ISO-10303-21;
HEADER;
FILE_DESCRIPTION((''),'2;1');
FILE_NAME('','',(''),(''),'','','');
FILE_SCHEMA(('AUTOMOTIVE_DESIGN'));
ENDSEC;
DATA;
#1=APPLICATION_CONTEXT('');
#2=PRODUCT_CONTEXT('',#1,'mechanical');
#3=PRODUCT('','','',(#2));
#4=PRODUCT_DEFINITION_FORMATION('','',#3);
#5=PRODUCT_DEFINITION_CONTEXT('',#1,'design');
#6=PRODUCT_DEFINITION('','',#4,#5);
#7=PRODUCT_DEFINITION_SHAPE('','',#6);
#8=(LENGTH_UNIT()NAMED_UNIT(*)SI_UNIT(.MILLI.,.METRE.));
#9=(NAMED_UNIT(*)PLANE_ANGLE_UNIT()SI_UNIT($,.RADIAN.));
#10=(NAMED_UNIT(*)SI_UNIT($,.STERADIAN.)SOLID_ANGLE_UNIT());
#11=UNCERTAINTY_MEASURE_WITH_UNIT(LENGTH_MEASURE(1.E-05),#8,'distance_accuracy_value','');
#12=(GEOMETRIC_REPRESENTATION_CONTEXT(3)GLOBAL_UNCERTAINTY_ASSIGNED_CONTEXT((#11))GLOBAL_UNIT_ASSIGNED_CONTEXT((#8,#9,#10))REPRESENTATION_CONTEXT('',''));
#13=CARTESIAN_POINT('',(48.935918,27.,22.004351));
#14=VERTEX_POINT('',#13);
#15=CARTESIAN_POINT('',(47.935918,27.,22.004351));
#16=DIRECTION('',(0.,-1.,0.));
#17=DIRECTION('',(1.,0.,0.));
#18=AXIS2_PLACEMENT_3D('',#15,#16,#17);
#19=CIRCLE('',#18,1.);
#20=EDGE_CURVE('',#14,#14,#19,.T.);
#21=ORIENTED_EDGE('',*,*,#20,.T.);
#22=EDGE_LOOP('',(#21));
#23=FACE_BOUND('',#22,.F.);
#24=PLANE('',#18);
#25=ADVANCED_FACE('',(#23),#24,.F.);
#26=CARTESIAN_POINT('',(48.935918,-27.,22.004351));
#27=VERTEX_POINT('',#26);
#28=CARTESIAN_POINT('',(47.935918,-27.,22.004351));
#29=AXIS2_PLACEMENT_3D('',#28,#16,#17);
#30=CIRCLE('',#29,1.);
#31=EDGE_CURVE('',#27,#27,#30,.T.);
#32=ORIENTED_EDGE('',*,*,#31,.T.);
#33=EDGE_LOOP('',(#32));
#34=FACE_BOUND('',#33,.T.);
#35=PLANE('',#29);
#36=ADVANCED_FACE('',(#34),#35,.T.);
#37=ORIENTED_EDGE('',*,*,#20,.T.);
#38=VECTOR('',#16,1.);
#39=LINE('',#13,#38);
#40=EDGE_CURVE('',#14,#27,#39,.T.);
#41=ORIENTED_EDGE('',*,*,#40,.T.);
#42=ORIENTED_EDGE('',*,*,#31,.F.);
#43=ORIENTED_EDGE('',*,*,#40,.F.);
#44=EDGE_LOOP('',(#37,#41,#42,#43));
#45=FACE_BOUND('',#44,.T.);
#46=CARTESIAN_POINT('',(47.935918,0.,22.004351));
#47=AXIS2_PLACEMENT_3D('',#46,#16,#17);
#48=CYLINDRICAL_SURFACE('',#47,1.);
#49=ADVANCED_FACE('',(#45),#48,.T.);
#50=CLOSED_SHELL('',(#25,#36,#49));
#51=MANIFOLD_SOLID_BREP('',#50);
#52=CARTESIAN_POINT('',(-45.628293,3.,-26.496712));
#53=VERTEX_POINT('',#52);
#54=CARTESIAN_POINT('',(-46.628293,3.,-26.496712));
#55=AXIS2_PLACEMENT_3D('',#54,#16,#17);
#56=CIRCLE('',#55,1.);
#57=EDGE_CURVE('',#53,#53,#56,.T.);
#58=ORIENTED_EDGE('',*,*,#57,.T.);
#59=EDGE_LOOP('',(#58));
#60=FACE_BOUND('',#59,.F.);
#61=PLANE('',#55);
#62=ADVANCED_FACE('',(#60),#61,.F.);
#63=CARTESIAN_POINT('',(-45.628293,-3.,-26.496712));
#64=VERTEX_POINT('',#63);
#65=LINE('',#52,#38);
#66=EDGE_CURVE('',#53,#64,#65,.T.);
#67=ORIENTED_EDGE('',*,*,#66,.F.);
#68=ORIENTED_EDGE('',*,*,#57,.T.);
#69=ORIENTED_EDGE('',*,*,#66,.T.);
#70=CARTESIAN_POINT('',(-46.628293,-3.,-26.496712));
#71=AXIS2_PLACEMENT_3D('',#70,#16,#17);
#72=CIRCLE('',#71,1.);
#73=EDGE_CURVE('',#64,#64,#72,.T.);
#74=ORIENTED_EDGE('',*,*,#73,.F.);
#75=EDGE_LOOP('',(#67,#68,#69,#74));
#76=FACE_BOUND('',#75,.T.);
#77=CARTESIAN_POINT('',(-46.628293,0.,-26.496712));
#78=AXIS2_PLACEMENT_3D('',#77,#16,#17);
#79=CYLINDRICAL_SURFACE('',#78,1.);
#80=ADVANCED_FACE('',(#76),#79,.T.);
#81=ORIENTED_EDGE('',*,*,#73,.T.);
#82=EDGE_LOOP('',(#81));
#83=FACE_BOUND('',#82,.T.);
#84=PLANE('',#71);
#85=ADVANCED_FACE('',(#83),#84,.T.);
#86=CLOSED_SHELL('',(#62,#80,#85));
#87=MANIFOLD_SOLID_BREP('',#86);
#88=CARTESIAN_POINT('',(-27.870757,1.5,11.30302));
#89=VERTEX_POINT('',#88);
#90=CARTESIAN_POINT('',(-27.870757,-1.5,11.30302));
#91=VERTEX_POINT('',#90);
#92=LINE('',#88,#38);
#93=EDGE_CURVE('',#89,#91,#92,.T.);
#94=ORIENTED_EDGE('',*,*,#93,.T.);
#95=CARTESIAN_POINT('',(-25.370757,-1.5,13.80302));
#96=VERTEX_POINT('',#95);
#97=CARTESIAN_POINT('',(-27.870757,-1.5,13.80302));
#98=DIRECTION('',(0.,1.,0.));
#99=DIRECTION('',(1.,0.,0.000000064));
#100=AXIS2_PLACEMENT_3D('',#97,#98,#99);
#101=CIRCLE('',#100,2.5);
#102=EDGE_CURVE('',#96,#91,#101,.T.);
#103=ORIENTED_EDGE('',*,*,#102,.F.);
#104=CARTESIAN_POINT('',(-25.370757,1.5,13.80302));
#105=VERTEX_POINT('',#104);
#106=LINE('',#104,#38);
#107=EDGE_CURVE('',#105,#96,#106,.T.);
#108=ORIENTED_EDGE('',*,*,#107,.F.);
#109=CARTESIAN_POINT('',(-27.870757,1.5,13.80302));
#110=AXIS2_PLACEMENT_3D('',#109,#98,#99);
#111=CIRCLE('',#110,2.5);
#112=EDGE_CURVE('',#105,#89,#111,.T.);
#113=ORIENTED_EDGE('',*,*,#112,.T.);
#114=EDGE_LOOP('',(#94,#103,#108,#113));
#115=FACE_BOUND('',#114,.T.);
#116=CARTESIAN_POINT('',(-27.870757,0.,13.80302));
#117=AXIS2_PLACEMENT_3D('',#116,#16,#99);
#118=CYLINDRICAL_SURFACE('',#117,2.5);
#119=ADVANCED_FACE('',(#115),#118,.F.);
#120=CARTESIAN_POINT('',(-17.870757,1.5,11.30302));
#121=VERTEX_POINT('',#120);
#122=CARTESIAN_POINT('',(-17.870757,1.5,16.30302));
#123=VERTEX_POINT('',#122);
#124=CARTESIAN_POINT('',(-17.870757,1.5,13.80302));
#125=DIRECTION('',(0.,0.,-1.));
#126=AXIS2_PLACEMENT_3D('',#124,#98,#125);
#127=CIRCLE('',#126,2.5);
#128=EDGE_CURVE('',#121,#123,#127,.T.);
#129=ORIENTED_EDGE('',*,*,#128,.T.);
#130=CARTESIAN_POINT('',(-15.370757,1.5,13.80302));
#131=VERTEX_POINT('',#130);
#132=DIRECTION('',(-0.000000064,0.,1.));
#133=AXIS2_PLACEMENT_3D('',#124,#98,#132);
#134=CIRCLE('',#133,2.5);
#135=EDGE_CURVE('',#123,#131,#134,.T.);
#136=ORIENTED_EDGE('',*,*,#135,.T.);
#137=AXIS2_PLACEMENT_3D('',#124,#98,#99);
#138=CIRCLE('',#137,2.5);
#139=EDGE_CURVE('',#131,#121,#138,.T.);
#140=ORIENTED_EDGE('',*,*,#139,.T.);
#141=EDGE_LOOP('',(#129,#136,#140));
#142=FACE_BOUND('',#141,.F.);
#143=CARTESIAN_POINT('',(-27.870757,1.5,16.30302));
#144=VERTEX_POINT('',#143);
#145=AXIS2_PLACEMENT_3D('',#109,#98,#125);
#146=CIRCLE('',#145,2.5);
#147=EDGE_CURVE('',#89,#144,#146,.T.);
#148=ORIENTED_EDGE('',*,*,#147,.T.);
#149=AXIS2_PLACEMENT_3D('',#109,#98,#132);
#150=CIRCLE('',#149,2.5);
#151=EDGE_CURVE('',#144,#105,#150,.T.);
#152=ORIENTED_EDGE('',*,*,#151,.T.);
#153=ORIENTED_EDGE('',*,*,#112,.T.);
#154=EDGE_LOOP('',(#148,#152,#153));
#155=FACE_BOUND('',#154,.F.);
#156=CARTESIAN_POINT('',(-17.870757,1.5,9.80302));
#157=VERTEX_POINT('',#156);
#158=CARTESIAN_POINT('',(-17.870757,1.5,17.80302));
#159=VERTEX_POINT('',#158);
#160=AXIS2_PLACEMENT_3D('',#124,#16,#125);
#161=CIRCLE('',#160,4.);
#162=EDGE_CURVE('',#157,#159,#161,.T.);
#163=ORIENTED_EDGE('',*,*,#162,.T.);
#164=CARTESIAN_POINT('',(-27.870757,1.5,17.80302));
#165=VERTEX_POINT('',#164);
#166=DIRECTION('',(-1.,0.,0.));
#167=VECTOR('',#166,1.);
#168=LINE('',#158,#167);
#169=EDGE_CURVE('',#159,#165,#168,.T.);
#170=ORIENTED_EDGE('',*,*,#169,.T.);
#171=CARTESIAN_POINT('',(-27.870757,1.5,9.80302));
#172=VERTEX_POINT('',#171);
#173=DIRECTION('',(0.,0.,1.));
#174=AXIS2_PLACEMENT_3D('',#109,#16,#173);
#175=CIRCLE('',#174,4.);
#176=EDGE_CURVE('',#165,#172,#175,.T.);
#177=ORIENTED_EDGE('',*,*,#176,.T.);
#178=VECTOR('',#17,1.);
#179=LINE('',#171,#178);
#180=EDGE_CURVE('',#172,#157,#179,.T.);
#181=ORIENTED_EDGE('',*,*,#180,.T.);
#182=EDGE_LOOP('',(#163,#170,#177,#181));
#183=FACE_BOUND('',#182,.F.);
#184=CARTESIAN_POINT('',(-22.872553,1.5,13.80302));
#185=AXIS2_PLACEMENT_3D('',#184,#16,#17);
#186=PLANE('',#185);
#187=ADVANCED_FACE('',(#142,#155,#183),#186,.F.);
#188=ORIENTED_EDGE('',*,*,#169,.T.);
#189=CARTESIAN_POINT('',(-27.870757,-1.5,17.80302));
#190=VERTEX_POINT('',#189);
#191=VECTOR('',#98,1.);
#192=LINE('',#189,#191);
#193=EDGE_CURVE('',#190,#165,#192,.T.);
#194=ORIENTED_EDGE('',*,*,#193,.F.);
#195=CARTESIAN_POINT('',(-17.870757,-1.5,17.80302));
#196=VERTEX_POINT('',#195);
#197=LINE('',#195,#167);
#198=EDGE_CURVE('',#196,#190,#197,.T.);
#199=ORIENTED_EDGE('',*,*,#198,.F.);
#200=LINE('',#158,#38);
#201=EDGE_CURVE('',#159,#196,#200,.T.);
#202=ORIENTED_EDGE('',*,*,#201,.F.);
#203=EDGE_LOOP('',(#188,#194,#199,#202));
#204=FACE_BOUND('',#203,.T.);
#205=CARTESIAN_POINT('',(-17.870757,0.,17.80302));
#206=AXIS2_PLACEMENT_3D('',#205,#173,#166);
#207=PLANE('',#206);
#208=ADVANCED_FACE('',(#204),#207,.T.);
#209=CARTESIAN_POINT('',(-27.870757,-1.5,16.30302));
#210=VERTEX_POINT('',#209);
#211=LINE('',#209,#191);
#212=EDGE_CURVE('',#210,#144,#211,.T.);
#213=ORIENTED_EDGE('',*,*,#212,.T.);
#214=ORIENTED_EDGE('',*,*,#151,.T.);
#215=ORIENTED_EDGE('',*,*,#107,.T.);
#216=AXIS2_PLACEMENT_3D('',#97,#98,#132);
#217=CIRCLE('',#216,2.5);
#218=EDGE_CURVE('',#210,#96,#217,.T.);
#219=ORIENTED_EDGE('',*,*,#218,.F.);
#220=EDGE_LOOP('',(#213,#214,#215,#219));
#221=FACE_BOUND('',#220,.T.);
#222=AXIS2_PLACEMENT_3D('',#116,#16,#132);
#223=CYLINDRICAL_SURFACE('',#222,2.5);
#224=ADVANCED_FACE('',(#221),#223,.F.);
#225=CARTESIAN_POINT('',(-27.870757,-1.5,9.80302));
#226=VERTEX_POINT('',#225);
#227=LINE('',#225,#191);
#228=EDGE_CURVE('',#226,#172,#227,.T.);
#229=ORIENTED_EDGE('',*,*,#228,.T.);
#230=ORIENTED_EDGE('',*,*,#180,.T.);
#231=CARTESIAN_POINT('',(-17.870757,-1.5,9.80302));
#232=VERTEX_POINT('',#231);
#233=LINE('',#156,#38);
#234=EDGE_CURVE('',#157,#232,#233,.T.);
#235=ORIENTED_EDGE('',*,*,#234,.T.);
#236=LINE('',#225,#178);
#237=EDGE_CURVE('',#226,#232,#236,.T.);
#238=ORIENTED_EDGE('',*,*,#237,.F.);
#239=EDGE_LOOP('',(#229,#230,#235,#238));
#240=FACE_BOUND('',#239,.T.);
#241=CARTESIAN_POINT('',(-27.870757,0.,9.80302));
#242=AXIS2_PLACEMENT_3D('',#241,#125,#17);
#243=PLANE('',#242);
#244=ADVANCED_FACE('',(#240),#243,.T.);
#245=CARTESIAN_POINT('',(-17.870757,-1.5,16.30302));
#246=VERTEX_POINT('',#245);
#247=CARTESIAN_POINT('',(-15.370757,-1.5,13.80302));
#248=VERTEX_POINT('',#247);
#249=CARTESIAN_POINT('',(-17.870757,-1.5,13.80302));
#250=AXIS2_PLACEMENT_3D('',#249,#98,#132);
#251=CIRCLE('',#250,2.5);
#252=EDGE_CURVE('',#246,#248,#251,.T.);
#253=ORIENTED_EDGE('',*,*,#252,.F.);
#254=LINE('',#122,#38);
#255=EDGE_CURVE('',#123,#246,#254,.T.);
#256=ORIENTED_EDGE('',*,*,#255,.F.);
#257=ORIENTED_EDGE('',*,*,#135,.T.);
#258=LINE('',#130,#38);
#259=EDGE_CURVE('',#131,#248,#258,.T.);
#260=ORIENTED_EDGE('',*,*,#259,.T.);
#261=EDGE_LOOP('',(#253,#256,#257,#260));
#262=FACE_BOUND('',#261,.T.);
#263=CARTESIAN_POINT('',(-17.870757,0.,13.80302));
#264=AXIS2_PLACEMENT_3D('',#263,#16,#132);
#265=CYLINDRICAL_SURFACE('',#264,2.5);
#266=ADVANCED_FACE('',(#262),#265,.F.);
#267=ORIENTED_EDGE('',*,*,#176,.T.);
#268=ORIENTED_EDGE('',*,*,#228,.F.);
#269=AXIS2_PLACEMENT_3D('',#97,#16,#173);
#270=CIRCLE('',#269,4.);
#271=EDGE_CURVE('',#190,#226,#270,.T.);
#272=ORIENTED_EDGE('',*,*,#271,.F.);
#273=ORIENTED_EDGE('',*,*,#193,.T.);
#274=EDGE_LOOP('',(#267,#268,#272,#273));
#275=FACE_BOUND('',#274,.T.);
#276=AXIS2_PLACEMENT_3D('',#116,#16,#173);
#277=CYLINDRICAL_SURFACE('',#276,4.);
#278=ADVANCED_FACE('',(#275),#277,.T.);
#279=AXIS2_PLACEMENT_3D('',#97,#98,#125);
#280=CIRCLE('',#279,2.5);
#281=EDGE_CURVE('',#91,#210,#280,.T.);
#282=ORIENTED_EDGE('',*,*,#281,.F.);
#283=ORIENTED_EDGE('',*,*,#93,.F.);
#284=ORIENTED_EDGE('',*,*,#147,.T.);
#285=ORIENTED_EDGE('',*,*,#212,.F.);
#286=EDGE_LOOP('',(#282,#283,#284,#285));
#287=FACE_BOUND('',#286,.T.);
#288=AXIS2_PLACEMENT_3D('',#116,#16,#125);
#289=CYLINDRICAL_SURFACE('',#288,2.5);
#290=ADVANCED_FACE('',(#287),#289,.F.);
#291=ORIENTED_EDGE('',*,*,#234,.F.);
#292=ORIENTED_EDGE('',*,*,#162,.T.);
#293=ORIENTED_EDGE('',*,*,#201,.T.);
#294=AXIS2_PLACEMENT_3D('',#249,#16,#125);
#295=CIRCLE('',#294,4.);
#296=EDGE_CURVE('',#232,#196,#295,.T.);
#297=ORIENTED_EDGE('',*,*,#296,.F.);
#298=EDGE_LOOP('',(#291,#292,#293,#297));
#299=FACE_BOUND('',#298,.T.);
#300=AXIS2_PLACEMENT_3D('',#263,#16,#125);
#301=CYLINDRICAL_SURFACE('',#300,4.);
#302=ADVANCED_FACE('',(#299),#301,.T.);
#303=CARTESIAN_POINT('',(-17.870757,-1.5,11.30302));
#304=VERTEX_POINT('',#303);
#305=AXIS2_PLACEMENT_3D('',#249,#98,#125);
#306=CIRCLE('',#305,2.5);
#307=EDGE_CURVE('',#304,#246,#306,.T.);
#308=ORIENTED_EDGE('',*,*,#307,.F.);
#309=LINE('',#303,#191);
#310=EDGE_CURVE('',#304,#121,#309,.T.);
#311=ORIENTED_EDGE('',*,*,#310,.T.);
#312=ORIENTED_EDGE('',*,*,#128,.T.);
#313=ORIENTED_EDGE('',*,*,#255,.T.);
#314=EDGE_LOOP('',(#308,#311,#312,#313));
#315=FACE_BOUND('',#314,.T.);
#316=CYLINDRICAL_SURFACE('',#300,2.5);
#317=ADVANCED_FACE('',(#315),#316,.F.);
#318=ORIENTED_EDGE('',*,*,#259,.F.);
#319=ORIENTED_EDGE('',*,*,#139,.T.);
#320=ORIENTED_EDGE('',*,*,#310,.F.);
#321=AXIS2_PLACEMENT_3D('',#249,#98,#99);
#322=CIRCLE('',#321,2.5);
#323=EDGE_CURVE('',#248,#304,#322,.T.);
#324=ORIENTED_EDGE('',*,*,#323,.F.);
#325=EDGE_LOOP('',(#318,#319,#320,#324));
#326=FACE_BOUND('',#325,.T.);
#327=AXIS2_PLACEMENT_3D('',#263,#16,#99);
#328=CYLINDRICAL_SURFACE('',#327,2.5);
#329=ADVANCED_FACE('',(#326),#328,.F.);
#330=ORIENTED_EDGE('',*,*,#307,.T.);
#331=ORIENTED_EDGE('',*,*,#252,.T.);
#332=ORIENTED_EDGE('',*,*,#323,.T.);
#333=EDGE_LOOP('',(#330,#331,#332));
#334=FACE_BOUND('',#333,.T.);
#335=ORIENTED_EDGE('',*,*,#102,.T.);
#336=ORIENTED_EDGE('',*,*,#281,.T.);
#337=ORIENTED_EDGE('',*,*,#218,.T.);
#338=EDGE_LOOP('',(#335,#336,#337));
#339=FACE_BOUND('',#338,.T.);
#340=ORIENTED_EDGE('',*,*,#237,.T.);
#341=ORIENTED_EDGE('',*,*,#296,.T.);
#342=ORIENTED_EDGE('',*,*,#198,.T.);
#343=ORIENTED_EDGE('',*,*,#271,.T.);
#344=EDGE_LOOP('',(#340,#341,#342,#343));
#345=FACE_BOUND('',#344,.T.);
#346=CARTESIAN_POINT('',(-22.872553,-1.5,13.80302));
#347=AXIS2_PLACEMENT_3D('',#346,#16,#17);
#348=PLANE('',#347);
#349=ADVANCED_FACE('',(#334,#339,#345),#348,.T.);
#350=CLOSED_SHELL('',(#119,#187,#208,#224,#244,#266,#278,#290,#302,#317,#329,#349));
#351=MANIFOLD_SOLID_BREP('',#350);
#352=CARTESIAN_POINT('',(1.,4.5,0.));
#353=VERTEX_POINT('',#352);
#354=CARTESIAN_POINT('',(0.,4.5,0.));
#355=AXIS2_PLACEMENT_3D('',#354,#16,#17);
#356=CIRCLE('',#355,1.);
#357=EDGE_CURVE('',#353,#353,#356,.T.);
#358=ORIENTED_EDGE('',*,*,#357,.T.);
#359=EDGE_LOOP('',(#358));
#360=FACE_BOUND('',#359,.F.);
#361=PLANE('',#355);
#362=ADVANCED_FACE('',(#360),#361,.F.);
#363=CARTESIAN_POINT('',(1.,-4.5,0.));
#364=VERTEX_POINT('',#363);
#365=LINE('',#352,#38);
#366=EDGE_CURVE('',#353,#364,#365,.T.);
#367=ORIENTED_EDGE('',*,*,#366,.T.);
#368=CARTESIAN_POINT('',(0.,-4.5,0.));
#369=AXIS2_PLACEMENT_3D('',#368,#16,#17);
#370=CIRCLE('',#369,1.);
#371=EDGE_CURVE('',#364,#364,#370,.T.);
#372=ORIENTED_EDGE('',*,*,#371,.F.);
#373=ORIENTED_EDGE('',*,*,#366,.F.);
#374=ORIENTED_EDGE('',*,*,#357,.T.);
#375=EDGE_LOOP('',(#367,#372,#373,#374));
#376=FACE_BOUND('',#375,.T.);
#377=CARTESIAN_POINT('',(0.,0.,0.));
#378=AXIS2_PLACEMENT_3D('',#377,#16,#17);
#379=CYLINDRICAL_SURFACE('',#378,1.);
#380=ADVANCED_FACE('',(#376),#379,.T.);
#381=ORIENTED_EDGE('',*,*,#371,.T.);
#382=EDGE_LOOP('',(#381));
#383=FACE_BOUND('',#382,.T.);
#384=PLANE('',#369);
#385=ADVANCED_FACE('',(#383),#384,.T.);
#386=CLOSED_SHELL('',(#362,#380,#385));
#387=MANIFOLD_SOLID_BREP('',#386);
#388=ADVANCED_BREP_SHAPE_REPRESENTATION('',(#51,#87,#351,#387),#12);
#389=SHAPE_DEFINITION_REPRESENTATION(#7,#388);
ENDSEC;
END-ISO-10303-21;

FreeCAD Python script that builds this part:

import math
import FreeCAD as App
import Part
import Sketcher

V = App.Vector
Q = App.Units.Quantity

doc = App.newDocument("Part")
body = doc.addObject("PartDesign::Body", "Body")

# Sketch on XZ plane
sketch1 = body.newObject("Sketcher::SketchObject", "Sketch")
sketch1.AttachmentSupport = (doc.getObject("XZ_Plane"), [""])
sketch1.MapMode = "FlatFace"
sketch1.addGeometry([
    Part.LineSegment(V(-27.9, 9.8, 0), V(-17.9, 9.8, 0)),  # 0
    Part.ArcOfCircle(Part.Circle(V(-17.9, 13.8, 0), V(0, 0, 1), 4), math.radians(-90), math.radians(90)),  # 1
    Part.LineSegment(V(-17.9, 17.8, 0), V(-27.9, 17.8, 0)),  # 2
    Part.ArcOfCircle(Part.Circle(V(-27.9, 13.8, 0), V(0, 0, 1), 4), math.radians(90), math.radians(270)),  # 3
    Part.ArcOfCircle(Part.Circle(V(-27.9, 13.8, 0), V(0, 0, 1), 2.5), math.radians(0), math.radians(90)),  # 4
    Part.ArcOfCircle(Part.Circle(V(-27.9, 13.8, 0), V(0, 0, 1), 2.5), math.radians(-90), math.radians(0)),  # 5
    Part.ArcOfCircle(Part.Circle(V(-27.9, 13.8, 0), V(0, 0, 1), 2.5), math.radians(90), math.radians(270)),  # 6
    Part.ArcOfCircle(Part.Circle(V(-17.9, 13.8, 0), V(0, 0, 1), 2.5), math.radians(90), math.radians(270)),  # 7
    Part.ArcOfCircle(Part.Circle(V(-17.9, 13.8, 0), V(0, 0, 1), 2.5), math.radians(0), math.radians(90)),  # 8
    Part.ArcOfCircle(Part.Circle(V(-17.9, 13.8, 0), V(0, 0, 1), 2.5), math.radians(-90), math.radians(0)),  # 9
], False)
sketch1.addConstraint([
    Sketcher.Constraint("Tangent", 0, 2, 1, 1),
    Sketcher.Constraint("Tangent", 1, 2, 2, 1),
    Sketcher.Constraint("Tangent", 2, 2, 3, 1),
    Sketcher.Constraint("Tangent", 3, 2, 0, 1),
    Sketcher.Constraint("Tangent", 4, 1, 5, 2),
    Sketcher.Constraint("Tangent", 5, 1, 6, 2),
    Sketcher.Constraint("Tangent", 6, 1, 4, 2),
    Sketcher.Constraint("Tangent", 7, 1, 8, 2),
    Sketcher.Constraint("Tangent", 8, 1, 9, 2),
    Sketcher.Constraint("Tangent", 9, 1, 7, 2),
    Sketcher.Constraint("Horizontal", 0),
    Sketcher.Constraint("Horizontal", 2),
    Sketcher.Constraint("Coincident", 4, 3, 3, 3),
    Sketcher.Constraint("Coincident", 7, 3, 1, 3),
    Sketcher.Constraint("Equal", 6, 7),
    Sketcher.Constraint("Horizontal", 9, 3, 4, 1),
    Sketcher.Constraint("Horizontal", 4, 1, 8, 1),
    Sketcher.Constraint("Vertical", 3, 2, 5, 1),
    Sketcher.Constraint("Vertical", 5, 1, 6, 1),
    Sketcher.Constraint("Vertical", 1, 2, 7, 1),
    Sketcher.Constraint("Vertical", 7, 1, 9, 1),
    Sketcher.Constraint("Radius", 1, Q("4 mm")),
    Sketcher.Constraint("Radius", 4, Q("2.5 mm")),
    Sketcher.Constraint("DistanceX", 0, 1, 0, 2, Q("10 mm")),
    Sketcher.Constraint("DistanceY", -1, 1, 1, 3, Q("13.80302 mm")),
    Sketcher.Constraint("DistanceX", 1, 3, -1, 1, Q("17.870757 mm")),
])
pad1 = body.newObject("PartDesign::Pad", "Pad")
pad1.Profile = sketch1
pad1.Length = 3
pad1.Midplane = True
body2 = doc.addObject("PartDesign::Body", "Body001")

# Sketch on XZ plane
sketch2 = body2.newObject("Sketcher::SketchObject", "Sketch001")
sketch2.AttachmentSupport = (doc.getObject("XZ_Plane001"), [""])
sketch2.MapMode = "FlatFace"
sketch2.addGeometry(Part.Circle(V(0, 0, 0), V(0, 0, 1), 1), False)
sketch2.addConstraint([
    Sketcher.Constraint("Coincident", 0, 3, -1, 1),
    Sketcher.Constraint("Diameter", 0, Q("2 mm")),
])
pad2 = body2.newObject("PartDesign::Pad", "Pad001")
pad2.Profile = sketch2
pad2.Length = 9
pad2.Midplane = True
body3 = doc.addObject("PartDesign::Body", "Body002")

# Sketch on XZ plane
sketch3 = body3.newObject("Sketcher::SketchObject", "Sketch002")
sketch3.AttachmentSupport = (doc.getObject("XZ_Plane002"), [""])
sketch3.MapMode = "FlatFace"
sketch3.addGeometry(Part.Circle(V(47.9, 22, 0), V(0, 0, 1), 1), False)
sketch3.addConstraint([
    Sketcher.Constraint("Diameter", 0, Q("2 mm")),
    Sketcher.Constraint("DistanceY", -1, 1, 0, 3, Q("22.004351 mm")),
    Sketcher.Constraint("DistanceX", -1, 1, 0, 3, Q("47.935918 mm")),
])
pad3 = body3.newObject("PartDesign::Pad", "Pad002")
pad3.Profile = sketch3
pad3.Length = 54
pad3.Midplane = True
body4 = doc.addObject("PartDesign::Body", "Body003")

# Sketch on XZ plane
sketch4 = body4.newObject("Sketcher::SketchObject", "Sketch003")
sketch4.AttachmentSupport = (doc.getObject("XZ_Plane003"), [""])
sketch4.MapMode = "FlatFace"
sketch4.addGeometry(Part.Circle(V(-46.6, -26.5, 0), V(0, 0, 1), 1), False)
sketch4.addConstraint([
    Sketcher.Constraint("Diameter", 0, Q("2 mm")),
    Sketcher.Constraint("DistanceY", 0, 3, -1, 1, Q("26.496712 mm")),
    Sketcher.Constraint("DistanceX", 0, 3, -1, 1, Q("46.628293 mm")),
])
pad4 = body4.newObject("PartDesign::Pad", "Pad003")
pad4.Profile = sketch4
pad4.Length = 6
pad4.Midplane = True

doc.recompute()
